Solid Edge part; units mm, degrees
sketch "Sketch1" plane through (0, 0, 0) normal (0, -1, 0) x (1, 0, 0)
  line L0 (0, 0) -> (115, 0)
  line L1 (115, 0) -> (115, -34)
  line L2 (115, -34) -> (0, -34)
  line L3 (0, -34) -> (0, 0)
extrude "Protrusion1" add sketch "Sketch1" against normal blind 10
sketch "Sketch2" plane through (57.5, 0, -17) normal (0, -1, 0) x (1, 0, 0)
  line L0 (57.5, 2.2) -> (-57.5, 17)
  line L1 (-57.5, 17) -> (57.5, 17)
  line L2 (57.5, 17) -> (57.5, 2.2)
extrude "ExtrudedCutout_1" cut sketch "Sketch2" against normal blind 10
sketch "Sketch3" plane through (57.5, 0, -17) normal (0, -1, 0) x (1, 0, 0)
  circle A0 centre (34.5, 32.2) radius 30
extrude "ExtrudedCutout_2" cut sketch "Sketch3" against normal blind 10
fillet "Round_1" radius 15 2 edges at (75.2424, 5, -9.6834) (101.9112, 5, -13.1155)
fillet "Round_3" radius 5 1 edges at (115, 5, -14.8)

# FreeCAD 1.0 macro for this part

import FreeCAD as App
import Part
import Sketcher
from FreeCAD import Vector


def edges_at(feature, points):
    """Names of the edges that pass closest to the given points."""
    edges = feature.Shape.Edges
    near = lambda p: min(range(len(edges)), key=lambda i: edges[i].distToShape(Part.Vertex(*p))[0])
    return sorted({f"Edge{near(p) + 1}" for p in points})

doc = App.newDocument("Part")
body = doc.addObject("PartDesign::Body", "Body")

sketch1 = doc.addObject("Sketcher::SketchObject", "Sketch")
body.addObject(sketch1)
sketch1.AttachmentSupport = (doc.XZ_Plane, [""])
sketch1.MapMode = "FlatFace"
sketch1.addGeometry(Part.LineSegment(Vector(115, 0, 0), Vector(0, 0, 0)), False)
sketch1.addGeometry(Part.LineSegment(Vector(0, 0, 0), Vector(0, -34, 0)), False)
sketch1.addGeometry(Part.LineSegment(Vector(0, -34, 0), Vector(115, -34, 0)), False)
sketch1.addGeometry(Part.LineSegment(Vector(115, -34, 0), Vector(115, 0, 0)), False)
sketch1.addConstraint(Sketcher.Constraint("Coincident", 0, 2, 1, 1))
sketch1.addConstraint(Sketcher.Constraint("Coincident", 1, 2, 2, 1))
sketch1.addConstraint(Sketcher.Constraint("Coincident", 2, 2, 3, 1))
sketch1.addConstraint(Sketcher.Constraint("Coincident", 3, 2, 0, 1))
sketch1.addConstraint(Sketcher.Constraint("Horizontal", 0))
sketch1.addConstraint(Sketcher.Constraint("Vertical", 1))
sketch1.addConstraint(Sketcher.Constraint("Horizontal", 2))
sketch1.addConstraint(Sketcher.Constraint("Vertical", 3))
sketch1.addConstraint(Sketcher.Constraint("Coincident", 0, 2, -1, 1))
sketch1.addConstraint(Sketcher.Constraint("DistanceX", 0, 2, 0, 1, 115.0))
sketch1.addConstraint(Sketcher.Constraint("DistanceY", 1, 2, 1, 1, 34.0))
pad1 = doc.addObject("PartDesign::Pad", "Pad")
body.addObject(pad1)
pad1.Profile = sketch1
pad1.Length = 10
pad1.Reversed = True

sketch2 = doc.addObject("Sketcher::SketchObject", "Sketch001")
body.addObject(sketch2)
sketch2.AttachmentSupport = (doc.XZ_Plane, [""])
sketch2.MapMode = "FlatFace"
sketch2.addGeometry(Part.LineSegment(Vector(0, 0, 0), Vector(115, -15, 0)), False)
sketch2.addGeometry(Part.LineSegment(Vector(115, -15, 0), Vector(115, 0, 0)), False)
sketch2.addGeometry(Part.LineSegment(Vector(115, 0, 0), Vector(0, 0, 0)), False)
sketch2.addConstraint(Sketcher.Constraint("Coincident", 0, 2, 1, 1))
sketch2.addConstraint(Sketcher.Constraint("Coincident", 1, 2, 2, 1))
sketch2.addConstraint(Sketcher.Constraint("Coincident", 2, 2, 0, 1))
sketch2.addConstraint(Sketcher.Constraint("Vertical", 1))
sketch2.addConstraint(Sketcher.Constraint("Horizontal", 2))
sketch2.addConstraint(Sketcher.Constraint("Coincident", 2, 2, -1, 1))
sketch2.addConstraint(Sketcher.Constraint("DistanceX", 2, 2, 2, 1, 115.0))
sketch2.addConstraint(Sketcher.Constraint("DistanceY", 1, 1, 1, 2, 14.8))
pocket1 = doc.addObject("PartDesign::Pocket", "Pocket")
body.addObject(pocket1)
pocket1.Profile = sketch2
pocket1.Length = 10

sketch3 = doc.addObject("Sketcher::SketchObject", "Sketch002")
body.addObject(sketch3)
sketch3.AttachmentSupport = (doc.XZ_Plane, [""])
sketch3.MapMode = "FlatFace"
sketch3.addGeometry(Part.Circle(Vector(92, 15, 0), Vector(0, 0, 1), 30), False)
sketch3.addConstraint(Sketcher.Constraint("Diameter", 0, 60.0))
sketch3.addConstraint(Sketcher.Constraint("DistanceX", -1, 1, 0, 3, 92.0))
sketch3.addConstraint(Sketcher.Constraint("DistanceY", -1, 1, 0, 3, 15.2))
pocket2 = doc.addObject("PartDesign::Pocket", "Pocket001")
body.addObject(pocket2)
pocket2.Profile = sketch3
pocket2.Length = 10
doc.recompute()

fillet = doc.addObject("PartDesign::Fillet", "Fillet")
body.addObject(fillet)
fillet.Base = (pocket2, edges_at(pocket2, [(75.242, 5, -9.683), (101.911, 5, -13.116)]))
fillet.Radius = 15
doc.recompute()

fillet2 = doc.addObject("PartDesign::Fillet", "Fillet001")
body.addObject(fillet2)
fillet2.Base = (fillet, edges_at(fillet, [(115, 5, -14.8)]))
fillet2.Radius = 5

doc.recompute()
